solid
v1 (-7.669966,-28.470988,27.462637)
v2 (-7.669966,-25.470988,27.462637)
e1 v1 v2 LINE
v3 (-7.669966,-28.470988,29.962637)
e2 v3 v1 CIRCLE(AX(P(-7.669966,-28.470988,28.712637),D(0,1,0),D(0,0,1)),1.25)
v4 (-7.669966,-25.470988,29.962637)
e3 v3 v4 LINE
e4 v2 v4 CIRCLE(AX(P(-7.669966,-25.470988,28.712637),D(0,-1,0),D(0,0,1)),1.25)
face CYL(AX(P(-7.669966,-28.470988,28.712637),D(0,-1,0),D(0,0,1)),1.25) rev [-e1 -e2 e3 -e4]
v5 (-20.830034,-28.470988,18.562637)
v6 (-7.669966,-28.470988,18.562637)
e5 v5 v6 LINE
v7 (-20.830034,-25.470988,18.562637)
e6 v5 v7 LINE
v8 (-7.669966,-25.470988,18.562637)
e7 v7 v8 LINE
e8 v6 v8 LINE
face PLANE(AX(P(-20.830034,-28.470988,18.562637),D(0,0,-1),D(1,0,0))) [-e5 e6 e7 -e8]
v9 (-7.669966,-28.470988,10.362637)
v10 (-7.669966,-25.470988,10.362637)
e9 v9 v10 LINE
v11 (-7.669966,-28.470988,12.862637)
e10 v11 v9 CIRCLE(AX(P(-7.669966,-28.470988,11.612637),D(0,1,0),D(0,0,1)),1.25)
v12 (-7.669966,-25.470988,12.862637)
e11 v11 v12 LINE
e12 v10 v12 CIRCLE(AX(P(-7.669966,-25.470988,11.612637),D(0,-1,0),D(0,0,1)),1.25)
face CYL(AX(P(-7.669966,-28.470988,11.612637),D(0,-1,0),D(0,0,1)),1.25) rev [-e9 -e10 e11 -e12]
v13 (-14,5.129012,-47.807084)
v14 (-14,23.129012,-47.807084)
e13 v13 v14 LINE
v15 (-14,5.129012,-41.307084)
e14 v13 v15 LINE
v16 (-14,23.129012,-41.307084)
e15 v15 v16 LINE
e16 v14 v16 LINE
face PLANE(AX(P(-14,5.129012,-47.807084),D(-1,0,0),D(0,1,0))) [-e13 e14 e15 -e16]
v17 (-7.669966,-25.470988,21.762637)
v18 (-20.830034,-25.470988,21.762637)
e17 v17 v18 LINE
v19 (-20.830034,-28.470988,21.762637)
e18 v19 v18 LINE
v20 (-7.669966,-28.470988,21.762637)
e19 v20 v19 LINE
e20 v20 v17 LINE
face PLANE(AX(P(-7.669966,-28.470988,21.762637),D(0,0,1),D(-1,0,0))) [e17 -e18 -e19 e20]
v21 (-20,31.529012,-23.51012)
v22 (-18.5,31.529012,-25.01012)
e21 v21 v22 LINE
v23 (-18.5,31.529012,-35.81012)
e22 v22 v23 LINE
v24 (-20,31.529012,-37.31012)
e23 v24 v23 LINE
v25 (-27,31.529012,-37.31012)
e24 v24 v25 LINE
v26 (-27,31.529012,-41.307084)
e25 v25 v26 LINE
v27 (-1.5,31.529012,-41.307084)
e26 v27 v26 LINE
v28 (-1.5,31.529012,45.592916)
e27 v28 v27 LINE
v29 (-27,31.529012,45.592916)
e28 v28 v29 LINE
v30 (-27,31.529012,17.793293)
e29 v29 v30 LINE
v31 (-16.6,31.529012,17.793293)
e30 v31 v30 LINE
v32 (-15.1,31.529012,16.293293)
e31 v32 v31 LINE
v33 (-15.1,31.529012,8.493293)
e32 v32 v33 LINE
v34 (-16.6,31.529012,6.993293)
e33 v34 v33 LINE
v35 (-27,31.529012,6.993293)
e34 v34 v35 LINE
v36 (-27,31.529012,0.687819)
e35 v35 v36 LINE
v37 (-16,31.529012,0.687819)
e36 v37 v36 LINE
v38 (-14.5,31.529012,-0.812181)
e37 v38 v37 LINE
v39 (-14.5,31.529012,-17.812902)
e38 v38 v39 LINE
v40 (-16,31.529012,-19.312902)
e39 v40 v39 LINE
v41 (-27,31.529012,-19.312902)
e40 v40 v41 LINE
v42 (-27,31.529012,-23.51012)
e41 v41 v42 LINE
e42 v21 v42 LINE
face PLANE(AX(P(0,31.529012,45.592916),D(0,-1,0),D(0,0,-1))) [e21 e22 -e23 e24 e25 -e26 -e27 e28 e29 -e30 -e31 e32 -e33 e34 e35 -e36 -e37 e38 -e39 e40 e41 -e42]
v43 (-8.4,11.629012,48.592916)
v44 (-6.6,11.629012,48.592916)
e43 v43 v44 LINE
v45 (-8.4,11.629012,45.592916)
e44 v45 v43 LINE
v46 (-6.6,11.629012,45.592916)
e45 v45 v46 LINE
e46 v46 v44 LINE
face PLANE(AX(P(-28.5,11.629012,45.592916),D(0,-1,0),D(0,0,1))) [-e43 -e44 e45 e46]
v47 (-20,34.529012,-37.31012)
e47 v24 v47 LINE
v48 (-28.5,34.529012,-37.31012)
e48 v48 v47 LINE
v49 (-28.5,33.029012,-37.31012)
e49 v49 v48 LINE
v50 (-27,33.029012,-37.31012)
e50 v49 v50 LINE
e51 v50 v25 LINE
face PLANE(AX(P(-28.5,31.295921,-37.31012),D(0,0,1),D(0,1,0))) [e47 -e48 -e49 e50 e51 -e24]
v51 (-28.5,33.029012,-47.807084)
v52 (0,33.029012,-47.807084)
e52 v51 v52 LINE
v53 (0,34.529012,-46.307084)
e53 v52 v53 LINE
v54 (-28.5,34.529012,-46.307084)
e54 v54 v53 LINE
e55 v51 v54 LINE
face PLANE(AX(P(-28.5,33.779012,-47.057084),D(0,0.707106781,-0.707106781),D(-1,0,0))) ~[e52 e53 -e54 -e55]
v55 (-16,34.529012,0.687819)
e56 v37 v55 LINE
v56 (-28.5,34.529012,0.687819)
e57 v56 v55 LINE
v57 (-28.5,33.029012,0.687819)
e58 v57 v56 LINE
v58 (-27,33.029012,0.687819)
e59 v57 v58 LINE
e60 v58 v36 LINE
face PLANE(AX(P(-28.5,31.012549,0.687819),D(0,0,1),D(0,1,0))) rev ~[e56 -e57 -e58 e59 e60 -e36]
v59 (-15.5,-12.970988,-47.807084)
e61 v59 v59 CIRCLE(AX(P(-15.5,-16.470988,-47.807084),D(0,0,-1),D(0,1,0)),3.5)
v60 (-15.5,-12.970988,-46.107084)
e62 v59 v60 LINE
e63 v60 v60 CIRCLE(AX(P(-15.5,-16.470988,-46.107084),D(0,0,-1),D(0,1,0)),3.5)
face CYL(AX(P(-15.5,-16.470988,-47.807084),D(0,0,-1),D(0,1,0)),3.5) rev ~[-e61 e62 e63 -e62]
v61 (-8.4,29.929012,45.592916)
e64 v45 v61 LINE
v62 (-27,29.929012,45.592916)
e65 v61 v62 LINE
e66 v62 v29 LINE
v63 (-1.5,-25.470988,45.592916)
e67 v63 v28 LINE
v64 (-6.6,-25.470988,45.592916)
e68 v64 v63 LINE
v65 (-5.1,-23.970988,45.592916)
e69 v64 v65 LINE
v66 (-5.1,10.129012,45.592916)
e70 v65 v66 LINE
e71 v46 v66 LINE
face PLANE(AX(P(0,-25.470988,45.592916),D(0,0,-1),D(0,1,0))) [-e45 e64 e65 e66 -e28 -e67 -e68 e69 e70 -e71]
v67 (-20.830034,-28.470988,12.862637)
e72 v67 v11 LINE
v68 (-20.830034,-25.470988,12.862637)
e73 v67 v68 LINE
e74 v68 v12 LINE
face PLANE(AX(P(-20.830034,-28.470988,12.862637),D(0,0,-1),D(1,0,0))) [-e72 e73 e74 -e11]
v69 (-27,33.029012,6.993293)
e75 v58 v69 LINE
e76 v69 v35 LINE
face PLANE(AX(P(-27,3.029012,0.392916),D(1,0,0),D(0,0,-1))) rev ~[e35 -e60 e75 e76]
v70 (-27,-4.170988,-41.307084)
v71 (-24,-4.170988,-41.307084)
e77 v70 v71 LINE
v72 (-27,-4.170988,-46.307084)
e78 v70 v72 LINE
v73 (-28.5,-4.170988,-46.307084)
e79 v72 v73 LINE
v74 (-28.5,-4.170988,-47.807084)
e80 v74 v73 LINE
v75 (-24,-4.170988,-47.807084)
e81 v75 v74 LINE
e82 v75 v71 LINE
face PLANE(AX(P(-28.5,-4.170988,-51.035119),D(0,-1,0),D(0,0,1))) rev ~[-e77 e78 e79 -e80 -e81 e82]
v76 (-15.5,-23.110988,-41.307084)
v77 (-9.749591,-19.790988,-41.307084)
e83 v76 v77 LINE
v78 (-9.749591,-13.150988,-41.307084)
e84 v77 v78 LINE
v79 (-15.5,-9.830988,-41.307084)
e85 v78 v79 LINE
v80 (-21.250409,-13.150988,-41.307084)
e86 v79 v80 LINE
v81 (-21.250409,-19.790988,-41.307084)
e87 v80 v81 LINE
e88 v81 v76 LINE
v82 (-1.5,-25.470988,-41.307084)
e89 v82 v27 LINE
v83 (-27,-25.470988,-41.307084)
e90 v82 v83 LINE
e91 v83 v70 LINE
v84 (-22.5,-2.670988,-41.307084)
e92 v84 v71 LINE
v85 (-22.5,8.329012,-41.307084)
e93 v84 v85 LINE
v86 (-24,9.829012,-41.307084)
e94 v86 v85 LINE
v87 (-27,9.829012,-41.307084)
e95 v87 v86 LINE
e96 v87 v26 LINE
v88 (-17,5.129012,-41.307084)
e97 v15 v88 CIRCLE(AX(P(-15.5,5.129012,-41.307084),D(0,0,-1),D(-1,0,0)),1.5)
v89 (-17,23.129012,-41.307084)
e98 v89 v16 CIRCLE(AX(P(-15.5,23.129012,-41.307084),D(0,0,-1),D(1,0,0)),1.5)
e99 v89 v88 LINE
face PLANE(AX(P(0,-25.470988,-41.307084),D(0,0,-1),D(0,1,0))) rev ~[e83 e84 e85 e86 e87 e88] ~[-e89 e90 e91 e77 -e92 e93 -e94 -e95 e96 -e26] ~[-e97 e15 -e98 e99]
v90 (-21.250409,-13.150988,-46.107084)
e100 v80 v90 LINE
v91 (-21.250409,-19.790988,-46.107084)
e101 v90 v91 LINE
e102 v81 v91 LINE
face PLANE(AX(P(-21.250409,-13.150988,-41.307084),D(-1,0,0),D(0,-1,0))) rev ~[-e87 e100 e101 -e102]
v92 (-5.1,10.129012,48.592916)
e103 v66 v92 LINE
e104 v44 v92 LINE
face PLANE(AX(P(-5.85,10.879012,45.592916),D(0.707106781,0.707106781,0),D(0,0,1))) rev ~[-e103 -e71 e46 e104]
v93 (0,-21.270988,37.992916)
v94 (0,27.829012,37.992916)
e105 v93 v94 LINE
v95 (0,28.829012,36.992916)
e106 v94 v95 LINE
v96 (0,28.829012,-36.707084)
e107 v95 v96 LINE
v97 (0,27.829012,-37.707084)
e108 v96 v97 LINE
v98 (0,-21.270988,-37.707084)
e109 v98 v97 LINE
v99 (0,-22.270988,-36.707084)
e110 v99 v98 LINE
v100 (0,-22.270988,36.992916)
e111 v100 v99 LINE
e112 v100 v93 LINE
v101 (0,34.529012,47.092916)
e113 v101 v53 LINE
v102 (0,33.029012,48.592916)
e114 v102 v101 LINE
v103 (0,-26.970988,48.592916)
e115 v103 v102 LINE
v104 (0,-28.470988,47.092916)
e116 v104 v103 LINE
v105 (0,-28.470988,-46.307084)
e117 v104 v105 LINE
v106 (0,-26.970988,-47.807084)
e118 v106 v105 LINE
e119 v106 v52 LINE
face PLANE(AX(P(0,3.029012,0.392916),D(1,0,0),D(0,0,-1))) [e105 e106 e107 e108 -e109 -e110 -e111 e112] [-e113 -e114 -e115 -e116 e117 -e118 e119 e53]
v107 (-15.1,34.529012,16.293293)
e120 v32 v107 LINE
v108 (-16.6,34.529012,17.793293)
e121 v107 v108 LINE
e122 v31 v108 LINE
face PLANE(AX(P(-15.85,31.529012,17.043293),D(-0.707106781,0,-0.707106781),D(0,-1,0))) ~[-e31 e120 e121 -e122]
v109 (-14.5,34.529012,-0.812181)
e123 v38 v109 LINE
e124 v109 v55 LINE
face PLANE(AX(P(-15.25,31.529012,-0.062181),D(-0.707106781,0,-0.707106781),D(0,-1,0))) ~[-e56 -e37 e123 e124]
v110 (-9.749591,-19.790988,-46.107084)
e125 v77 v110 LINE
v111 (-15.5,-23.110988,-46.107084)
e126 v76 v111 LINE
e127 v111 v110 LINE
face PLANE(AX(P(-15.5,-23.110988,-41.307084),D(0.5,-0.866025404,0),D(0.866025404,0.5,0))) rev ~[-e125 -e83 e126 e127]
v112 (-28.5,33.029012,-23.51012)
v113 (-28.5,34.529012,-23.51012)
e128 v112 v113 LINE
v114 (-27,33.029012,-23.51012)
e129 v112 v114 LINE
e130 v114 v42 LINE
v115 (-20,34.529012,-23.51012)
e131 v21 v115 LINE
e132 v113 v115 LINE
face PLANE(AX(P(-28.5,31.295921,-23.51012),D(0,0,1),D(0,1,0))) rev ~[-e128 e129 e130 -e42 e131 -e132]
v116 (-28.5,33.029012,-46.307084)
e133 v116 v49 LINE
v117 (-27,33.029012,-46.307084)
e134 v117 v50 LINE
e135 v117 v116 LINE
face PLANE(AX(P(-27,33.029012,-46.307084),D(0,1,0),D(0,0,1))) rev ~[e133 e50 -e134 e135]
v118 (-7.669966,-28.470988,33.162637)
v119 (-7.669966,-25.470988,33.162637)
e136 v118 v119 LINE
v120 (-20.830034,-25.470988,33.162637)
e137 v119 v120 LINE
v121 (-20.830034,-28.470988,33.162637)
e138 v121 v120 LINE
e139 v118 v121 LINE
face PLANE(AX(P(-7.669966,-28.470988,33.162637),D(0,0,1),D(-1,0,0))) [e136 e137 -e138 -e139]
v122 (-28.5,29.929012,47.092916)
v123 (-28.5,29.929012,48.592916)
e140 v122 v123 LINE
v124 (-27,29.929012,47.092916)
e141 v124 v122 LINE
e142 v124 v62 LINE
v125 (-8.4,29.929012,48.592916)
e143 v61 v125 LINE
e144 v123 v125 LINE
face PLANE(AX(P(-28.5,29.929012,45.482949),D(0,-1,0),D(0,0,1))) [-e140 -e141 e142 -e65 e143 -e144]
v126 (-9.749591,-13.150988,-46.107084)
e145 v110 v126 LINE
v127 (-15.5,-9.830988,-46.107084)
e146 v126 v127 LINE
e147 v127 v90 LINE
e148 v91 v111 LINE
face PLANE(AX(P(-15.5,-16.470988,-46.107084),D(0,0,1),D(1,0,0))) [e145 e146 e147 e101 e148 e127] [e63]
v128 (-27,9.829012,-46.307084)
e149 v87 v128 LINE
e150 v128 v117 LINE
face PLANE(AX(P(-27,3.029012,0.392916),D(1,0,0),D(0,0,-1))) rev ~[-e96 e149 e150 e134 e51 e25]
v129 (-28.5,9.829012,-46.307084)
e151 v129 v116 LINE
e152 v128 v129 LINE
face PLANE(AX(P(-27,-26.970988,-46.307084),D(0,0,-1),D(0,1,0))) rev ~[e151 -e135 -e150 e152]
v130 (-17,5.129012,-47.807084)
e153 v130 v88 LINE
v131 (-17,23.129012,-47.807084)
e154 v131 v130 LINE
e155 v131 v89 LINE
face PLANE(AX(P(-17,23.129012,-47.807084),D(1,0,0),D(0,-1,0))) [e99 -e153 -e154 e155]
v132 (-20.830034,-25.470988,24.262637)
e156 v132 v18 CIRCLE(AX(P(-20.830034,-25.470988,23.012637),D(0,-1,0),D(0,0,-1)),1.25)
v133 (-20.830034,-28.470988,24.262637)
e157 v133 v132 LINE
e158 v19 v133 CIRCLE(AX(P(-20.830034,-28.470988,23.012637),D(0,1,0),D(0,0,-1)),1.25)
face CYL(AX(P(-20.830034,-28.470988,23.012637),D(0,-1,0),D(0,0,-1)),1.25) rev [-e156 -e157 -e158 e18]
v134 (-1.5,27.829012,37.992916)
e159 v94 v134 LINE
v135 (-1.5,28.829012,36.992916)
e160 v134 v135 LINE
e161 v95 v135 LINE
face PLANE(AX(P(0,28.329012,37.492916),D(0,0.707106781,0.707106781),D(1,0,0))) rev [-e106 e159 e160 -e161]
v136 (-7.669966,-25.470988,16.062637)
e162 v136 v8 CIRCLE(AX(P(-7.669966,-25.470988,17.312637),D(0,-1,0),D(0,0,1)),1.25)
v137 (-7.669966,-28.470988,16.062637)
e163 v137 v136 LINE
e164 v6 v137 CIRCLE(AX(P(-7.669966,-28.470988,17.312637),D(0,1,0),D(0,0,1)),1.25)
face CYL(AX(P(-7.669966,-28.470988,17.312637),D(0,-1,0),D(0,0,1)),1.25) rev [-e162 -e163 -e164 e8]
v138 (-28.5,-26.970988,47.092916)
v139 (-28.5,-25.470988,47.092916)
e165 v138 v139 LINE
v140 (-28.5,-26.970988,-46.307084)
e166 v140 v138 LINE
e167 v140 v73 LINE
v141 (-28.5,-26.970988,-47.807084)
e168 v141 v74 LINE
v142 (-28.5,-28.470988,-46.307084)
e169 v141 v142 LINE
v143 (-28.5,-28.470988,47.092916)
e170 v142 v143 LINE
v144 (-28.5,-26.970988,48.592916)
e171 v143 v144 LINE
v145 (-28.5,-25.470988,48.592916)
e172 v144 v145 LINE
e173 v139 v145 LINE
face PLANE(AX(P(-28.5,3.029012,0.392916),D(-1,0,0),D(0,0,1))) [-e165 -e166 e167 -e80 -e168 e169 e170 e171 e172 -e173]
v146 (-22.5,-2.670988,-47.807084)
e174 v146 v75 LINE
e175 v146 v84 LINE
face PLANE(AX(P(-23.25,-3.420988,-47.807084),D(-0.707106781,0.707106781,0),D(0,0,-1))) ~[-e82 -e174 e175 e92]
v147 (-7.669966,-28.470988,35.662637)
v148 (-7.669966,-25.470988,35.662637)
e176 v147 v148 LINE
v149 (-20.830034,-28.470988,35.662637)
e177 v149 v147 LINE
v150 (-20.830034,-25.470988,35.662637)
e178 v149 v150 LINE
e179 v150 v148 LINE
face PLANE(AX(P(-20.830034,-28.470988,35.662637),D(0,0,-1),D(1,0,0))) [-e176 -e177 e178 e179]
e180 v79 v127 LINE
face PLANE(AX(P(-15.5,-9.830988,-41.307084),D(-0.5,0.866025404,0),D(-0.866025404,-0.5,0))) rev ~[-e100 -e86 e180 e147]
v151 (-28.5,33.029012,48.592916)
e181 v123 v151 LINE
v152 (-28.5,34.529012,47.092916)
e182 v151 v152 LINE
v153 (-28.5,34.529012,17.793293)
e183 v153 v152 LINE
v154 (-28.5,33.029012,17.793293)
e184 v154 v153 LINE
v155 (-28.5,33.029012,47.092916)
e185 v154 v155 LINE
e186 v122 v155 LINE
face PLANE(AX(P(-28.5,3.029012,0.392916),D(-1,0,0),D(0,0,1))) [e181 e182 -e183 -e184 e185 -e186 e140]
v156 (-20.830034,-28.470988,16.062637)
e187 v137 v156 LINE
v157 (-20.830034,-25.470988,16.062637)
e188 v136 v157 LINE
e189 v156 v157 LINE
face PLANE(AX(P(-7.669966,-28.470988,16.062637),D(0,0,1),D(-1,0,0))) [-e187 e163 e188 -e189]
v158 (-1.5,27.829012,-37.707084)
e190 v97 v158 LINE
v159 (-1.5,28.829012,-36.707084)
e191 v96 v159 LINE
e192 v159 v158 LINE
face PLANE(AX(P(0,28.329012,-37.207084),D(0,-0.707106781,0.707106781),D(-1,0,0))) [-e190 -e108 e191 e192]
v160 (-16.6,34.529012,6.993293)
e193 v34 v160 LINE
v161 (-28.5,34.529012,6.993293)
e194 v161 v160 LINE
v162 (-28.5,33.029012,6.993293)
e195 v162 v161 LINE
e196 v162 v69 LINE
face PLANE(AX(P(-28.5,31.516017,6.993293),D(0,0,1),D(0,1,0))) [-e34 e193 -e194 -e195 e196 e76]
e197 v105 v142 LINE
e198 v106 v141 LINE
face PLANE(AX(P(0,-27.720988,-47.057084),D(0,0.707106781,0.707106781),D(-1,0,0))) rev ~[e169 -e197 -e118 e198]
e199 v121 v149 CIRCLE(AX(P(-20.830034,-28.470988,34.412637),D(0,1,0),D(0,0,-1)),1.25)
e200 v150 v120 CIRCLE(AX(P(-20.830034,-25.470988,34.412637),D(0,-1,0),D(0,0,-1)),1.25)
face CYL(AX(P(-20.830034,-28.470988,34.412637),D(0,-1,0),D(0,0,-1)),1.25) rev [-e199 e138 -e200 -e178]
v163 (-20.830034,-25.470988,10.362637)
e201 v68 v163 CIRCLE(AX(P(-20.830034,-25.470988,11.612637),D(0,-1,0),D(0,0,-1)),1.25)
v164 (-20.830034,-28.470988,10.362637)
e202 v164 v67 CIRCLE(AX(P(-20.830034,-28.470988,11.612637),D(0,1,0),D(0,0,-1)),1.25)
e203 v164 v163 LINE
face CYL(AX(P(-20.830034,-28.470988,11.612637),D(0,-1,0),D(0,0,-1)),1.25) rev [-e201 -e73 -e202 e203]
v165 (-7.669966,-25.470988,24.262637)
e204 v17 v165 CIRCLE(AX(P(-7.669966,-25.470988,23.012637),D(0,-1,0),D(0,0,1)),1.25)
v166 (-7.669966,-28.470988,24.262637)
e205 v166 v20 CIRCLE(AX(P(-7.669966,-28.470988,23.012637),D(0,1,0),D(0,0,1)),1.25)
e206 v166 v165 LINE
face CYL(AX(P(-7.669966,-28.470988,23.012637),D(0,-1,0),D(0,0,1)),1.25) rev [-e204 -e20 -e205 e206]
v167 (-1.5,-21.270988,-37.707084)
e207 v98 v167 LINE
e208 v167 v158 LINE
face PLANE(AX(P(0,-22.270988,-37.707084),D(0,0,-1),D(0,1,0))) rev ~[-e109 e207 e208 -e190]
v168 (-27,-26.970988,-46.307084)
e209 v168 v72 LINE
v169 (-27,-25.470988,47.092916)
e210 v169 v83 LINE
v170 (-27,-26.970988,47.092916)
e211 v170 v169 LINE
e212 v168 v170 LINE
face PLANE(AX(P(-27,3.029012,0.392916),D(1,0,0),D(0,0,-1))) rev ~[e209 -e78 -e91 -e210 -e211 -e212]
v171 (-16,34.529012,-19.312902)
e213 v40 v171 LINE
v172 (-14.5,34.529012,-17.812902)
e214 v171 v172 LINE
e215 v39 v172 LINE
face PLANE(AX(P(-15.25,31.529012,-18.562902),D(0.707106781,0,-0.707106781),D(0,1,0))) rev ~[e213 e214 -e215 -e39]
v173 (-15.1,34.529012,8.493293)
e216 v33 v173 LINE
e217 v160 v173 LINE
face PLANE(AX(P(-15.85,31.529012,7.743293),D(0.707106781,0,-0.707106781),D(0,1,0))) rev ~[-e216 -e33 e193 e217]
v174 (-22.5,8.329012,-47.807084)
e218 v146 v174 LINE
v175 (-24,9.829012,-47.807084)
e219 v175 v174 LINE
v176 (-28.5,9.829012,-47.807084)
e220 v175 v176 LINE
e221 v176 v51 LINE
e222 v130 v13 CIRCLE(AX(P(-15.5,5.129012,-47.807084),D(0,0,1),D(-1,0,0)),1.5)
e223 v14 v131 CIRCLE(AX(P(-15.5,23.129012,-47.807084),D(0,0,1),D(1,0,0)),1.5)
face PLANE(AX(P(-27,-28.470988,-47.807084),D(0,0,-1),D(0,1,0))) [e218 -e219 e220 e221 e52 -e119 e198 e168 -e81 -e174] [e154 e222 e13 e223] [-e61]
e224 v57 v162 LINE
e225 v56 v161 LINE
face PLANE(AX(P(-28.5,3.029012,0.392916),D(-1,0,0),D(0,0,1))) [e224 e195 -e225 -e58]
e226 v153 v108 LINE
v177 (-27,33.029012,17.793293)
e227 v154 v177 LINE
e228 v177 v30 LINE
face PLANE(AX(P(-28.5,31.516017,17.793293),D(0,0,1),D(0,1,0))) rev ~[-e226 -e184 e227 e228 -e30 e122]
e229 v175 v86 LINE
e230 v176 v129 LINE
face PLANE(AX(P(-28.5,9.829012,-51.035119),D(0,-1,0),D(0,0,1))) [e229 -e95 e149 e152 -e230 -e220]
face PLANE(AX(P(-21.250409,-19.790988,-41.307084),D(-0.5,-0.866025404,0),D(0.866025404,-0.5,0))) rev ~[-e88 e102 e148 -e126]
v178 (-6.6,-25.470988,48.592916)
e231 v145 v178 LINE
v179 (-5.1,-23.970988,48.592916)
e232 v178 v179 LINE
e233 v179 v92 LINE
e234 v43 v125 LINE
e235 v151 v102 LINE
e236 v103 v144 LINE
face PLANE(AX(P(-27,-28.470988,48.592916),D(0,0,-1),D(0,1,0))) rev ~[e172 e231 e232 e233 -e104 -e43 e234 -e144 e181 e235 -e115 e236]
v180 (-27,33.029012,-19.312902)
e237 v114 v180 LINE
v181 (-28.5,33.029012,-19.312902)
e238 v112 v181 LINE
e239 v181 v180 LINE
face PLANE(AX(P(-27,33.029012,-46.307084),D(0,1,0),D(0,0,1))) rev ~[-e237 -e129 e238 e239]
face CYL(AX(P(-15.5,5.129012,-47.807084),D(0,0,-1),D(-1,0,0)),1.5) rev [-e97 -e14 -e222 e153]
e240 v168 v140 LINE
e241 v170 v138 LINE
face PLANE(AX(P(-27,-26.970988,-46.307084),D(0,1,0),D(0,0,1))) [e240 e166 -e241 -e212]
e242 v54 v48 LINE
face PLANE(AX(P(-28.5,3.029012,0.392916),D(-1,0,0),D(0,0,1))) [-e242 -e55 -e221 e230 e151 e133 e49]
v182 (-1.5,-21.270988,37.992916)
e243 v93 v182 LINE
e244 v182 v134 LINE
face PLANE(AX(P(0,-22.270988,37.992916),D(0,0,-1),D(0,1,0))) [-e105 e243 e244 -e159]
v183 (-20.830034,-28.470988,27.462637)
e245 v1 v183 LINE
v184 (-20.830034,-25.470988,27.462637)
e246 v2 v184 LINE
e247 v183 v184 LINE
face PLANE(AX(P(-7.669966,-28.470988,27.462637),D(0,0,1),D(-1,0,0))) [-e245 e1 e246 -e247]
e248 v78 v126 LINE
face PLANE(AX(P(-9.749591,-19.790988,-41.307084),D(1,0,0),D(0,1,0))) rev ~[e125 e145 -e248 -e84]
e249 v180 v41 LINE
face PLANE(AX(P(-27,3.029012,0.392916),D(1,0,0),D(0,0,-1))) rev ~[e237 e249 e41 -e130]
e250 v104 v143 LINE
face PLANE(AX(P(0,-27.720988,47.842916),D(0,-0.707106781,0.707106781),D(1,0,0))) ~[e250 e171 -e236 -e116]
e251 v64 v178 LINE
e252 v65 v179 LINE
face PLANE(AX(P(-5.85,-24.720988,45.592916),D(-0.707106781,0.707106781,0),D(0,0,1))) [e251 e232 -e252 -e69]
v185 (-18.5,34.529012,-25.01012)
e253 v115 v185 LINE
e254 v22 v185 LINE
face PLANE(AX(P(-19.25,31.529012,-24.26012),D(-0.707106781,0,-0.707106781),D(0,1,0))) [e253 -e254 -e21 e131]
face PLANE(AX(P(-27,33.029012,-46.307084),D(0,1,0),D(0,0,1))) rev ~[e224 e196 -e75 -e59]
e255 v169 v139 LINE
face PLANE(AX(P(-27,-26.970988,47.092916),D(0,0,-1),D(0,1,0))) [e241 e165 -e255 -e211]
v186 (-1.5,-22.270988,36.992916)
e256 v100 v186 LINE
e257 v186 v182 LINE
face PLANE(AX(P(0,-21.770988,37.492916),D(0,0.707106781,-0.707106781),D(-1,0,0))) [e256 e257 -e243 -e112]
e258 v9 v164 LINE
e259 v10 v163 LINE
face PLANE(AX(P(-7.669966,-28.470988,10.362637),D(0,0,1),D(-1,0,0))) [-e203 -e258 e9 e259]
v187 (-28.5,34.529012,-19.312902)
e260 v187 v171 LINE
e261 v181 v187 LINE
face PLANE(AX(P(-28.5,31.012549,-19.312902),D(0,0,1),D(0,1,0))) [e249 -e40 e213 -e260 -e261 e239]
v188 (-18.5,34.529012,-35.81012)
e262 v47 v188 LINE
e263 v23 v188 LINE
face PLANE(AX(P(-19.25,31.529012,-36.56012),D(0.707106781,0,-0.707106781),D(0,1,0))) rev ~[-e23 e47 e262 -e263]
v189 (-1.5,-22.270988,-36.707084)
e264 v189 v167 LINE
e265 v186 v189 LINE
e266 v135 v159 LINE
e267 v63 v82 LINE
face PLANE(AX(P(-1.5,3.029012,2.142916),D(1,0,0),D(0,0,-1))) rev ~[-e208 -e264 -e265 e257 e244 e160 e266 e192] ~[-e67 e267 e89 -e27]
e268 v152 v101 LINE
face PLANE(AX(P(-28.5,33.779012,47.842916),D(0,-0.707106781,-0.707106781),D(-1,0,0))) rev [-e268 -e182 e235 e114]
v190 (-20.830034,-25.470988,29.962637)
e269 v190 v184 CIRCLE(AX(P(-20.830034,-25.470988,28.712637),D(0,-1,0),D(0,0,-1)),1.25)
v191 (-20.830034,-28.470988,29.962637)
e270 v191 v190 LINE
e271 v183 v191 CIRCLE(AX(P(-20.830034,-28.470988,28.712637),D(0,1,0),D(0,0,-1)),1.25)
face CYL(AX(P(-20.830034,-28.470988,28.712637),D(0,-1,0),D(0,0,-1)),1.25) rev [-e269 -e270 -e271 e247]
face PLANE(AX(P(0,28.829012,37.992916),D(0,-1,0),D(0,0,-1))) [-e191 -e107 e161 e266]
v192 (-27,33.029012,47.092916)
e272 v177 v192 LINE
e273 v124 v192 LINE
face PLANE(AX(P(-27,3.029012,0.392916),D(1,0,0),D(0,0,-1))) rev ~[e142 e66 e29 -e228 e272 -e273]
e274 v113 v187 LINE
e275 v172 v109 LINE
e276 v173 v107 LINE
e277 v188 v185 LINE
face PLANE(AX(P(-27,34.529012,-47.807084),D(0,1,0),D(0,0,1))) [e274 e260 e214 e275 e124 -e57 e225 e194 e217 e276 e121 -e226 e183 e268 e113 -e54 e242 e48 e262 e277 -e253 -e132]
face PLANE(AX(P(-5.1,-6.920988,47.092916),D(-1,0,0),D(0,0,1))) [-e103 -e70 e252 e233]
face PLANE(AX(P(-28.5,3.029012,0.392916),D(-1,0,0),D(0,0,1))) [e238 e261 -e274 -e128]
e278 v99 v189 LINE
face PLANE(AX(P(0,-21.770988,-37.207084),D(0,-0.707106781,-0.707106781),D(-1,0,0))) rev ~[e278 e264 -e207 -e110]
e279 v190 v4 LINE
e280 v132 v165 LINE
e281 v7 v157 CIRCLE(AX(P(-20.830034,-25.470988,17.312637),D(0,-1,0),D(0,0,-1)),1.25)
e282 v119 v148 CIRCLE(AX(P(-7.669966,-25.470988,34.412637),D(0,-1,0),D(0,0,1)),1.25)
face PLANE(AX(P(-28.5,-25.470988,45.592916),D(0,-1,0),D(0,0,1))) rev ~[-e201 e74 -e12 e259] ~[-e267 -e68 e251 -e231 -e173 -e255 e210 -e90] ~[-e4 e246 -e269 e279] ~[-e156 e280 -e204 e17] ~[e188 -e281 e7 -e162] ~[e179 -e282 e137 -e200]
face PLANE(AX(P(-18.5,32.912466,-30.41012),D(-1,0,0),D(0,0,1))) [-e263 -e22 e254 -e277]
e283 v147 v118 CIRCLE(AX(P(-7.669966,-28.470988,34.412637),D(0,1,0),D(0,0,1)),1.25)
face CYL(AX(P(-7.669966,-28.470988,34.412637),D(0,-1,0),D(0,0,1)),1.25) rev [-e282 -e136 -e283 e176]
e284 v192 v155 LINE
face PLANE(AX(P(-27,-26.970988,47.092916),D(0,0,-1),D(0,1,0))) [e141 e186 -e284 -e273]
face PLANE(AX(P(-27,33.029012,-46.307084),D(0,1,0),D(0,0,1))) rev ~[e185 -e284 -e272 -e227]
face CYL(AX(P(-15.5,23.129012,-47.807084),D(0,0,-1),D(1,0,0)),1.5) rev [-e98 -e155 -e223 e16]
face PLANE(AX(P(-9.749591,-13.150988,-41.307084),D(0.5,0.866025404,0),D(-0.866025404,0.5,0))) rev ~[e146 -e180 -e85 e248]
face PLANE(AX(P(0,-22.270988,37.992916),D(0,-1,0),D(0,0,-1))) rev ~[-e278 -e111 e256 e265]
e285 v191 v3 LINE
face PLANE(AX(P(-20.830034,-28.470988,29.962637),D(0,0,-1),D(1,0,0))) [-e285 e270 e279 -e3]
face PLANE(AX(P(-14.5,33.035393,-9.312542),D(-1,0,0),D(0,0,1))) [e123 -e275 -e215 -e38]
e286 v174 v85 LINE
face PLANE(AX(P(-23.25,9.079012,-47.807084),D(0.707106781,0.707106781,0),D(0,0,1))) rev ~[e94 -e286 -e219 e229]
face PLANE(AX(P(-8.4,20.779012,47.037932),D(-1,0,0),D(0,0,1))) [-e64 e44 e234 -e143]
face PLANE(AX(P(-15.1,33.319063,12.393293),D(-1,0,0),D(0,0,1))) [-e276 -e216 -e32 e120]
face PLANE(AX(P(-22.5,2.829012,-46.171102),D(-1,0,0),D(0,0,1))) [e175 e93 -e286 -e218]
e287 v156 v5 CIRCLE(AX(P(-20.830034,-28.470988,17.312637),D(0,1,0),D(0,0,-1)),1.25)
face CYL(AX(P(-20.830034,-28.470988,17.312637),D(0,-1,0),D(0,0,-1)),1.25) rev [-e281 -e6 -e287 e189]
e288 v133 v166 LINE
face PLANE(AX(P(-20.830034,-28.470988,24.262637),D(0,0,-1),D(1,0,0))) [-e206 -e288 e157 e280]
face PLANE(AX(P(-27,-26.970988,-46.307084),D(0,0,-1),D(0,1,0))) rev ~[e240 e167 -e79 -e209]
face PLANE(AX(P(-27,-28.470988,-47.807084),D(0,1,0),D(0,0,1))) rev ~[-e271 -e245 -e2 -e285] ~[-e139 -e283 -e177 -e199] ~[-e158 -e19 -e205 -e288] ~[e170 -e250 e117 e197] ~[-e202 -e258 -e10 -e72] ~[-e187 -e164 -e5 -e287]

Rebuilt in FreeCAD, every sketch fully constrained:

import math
import FreeCAD as App
import Part
import Sketcher
Q = App.Units.Quantity


def edges_at(feature, points):
    """Names of the edges that pass closest to the given points."""
    edges = feature.Shape.Edges
    near = lambda p: min(range(len(edges)), key=lambda i: edges[i].distToShape(Part.Vertex(*p))[0])
    return sorted({f"Edge{near(p) + 1}" for p in points})

doc = App.newDocument("Part")
body = doc.addObject("PartDesign::Body", "Body")

sketch1 = body.newObject("Sketcher::SketchObject", "Sketch")
sketch1.AttachmentSupport = (doc.getObject("YZ_Plane"), [""])
sketch1.MapMode = "FlatFace"
sketch1.addGeometry([
    Part.LineSegment(App.Vector(32, 46, 0), App.Vector(-25, 46, 0)),
    Part.LineSegment(App.Vector(-25, 46, 0), App.Vector(-25, -41, 0)),
    Part.LineSegment(App.Vector(-25, -41, 0), App.Vector(32, -41, 0)),
    Part.LineSegment(App.Vector(32, -41, 0), App.Vector(32, 46, 0)),
    Part.LineSegment(App.Vector(-22, -38, 0), App.Vector(-22, 38, 0)),
    Part.LineSegment(App.Vector(-22, 38, 0), App.Vector(29, 38, 0)),
    Part.LineSegment(App.Vector(29, 38, 0), App.Vector(29, -38, 0)),
    Part.LineSegment(App.Vector(29, -38, 0), App.Vector(-22, -38, 0)),
], False)
sketch1.addConstraint([
    Sketcher.Constraint("Coincident", 0, 2, 1, 1),
    Sketcher.Constraint("Coincident", 1, 2, 2, 1),
    Sketcher.Constraint("Coincident", 2, 2, 3, 1),
    Sketcher.Constraint("Coincident", 3, 2, 0, 1),
    Sketcher.Constraint("Coincident", 4, 2, 5, 1),
    Sketcher.Constraint("Coincident", 5, 2, 6, 1),
    Sketcher.Constraint("Coincident", 6, 2, 7, 1),
    Sketcher.Constraint("Coincident", 7, 2, 4, 1),
    Sketcher.Constraint("Horizontal", 0),
    Sketcher.Constraint("Vertical", 1),
    Sketcher.Constraint("Horizontal", 2),
    Sketcher.Constraint("Vertical", 3),
    Sketcher.Constraint("Vertical", 4),
    Sketcher.Constraint("Horizontal", 5),
    Sketcher.Constraint("Vertical", 6),
    Sketcher.Constraint("Horizontal", 7),
    Sketcher.Constraint("DistanceX", 0, 2, 0, 1, 57.0),
    Sketcher.Constraint("DistanceX", 5, 1, 5, 2, 51.1),
    Sketcher.Constraint("DistanceY", 1, 2, 1, 1, 86.9),
    Sketcher.Constraint("DistanceY", 4, 1, 4, 2, 75.7),
    Sketcher.Constraint("DistanceX", 0, 2, 4, 2, 3.2),
    Sketcher.Constraint("DistanceY", 4, 2, 0, 2, 7.6),
    Sketcher.Constraint("DistanceX", 0, 2, -1, 1, 25.470988),
    Sketcher.Constraint("DistanceY", -1, 1, 0, 2, 45.592916),
])
pad1 = body.newObject("PartDesign::Pad", "Pad")
pad1.Profile = sketch1
pad1.Length = 1.5
pad1.Reversed = True

sketch2 = body.newObject("Sketcher::SketchObject", "Sketch001")
sketch2.AttachmentSupport = (doc.getObject("YZ_Plane"), [""])
sketch2.MapMode = "FlatFace"
sketch2.addGeometry([
    Part.LineSegment(App.Vector(35, 49, 0), App.Vector(-28, 49, 0)),
    Part.LineSegment(App.Vector(-28, 49, 0), App.Vector(-28, -48, 0)),
    Part.LineSegment(App.Vector(-28, -48, 0), App.Vector(35, -48, 0)),
    Part.LineSegment(App.Vector(35, -48, 0), App.Vector(35, 49, 0)),
    Part.LineSegment(App.Vector(-25, -41, 0), App.Vector(-25, 46, 0)),
    Part.LineSegment(App.Vector(-25, 46, 0), App.Vector(32, 46, 0)),
    Part.LineSegment(App.Vector(32, 46, 0), App.Vector(32, -41, 0)),
    Part.LineSegment(App.Vector(32, -41, 0), App.Vector(-25, -41, 0)),
], False)
sketch2.addConstraint([
    Sketcher.Constraint("Coincident", 0, 2, 1, 1),
    Sketcher.Constraint("Coincident", 1, 2, 2, 1),
    Sketcher.Constraint("Coincident", 2, 2, 3, 1),
    Sketcher.Constraint("Coincident", 3, 2, 0, 1),
    Sketcher.Constraint("Coincident", 4, 2, 5, 1),
    Sketcher.Constraint("Coincident", 5, 2, 6, 1),
    Sketcher.Constraint("Coincident", 6, 2, 7, 1),
    Sketcher.Constraint("Coincident", 7, 2, 4, 1),
    Sketcher.Constraint("Horizontal", 0),
    Sketcher.Constraint("Vertical", 1),
    Sketcher.Constraint("Horizontal", 2),
    Sketcher.Constraint("Vertical", 3),
    Sketcher.Constraint("Vertical", 4),
    Sketcher.Constraint("Horizontal", 5),
    Sketcher.Constraint("Vertical", 6),
    Sketcher.Constraint("Horizontal", 7),
    Sketcher.Constraint("DistanceX", 0, 2, 0, 1, 63.0),
    Sketcher.Constraint("DistanceX", 5, 1, 5, 2, 57.0),
    Sketcher.Constraint("DistanceY", 1, 2, 1, 1, 96.4),
    Sketcher.Constraint("DistanceY", 4, 1, 4, 2, 86.9),
    Sketcher.Constraint("DistanceX", 0, 2, 4, 2, 3.0),
    Sketcher.Constraint("DistanceY", 4, 2, 0, 2, 3.0),
    Sketcher.Constraint("DistanceX", 0, 2, -1, 1, 28.470988),
    Sketcher.Constraint("DistanceY", -1, 1, 0, 2, 48.592916),
])
pad2 = body.newObject("PartDesign::Pad", "Pad001")
pad2.Profile = sketch2
pad2.Length = 27
pad2.Reversed = True
doc.recompute()

chamfer = body.newObject("PartDesign::Chamfer", "Chamfer")
chamfer.Base = (pad2, edges_at(pad2, [
    (-0.75, 28.829, 37.993),
    (-0.75, -22.271, 37.993),
    (-0.75, -22.271, -37.707),
    (-0.75, 28.829, -37.707),
]))
chamfer.Size = 1

sketch3 = body.newObject("Sketcher::SketchObject", "Sketch002")
sketch3.AttachmentSupport = (doc.getObject("YZ_Plane"), [""])
sketch3.MapMode = "FlatFace"
sketch3.AttachmentOffset = App.Placement(App.Vector(0, 0, -27), App.Rotation())
sketch3.addGeometry([
    Part.LineSegment(App.Vector(35, -48, 0), App.Vector(-28, -48, 0)),
    Part.LineSegment(App.Vector(-28, -48, 0), App.Vector(-28, 49, 0)),
    Part.LineSegment(App.Vector(-28, 49, 0), App.Vector(35, 49, 0)),
    Part.LineSegment(App.Vector(35, 49, 0), App.Vector(35, -48, 0)),
    Part.LineSegment(App.Vector(-27, 47, 0), App.Vector(-27, -46, 0)),
    Part.LineSegment(App.Vector(-27, -46, 0), App.Vector(33, -46, 0)),
    Part.LineSegment(App.Vector(33, -46, 0), App.Vector(33, 47, 0)),
    Part.LineSegment(App.Vector(33, 47, 0), App.Vector(-27, 47, 0)),
], False)
sketch3.addConstraint([
    Sketcher.Constraint("Coincident", 0, 2, 1, 1),
    Sketcher.Constraint("Coincident", 1, 2, 2, 1),
    Sketcher.Constraint("Coincident", 2, 2, 3, 1),
    Sketcher.Constraint("Coincident", 3, 2, 0, 1),
    Sketcher.Constraint("Coincident", 4, 2, 5, 1),
    Sketcher.Constraint("Coincident", 5, 2, 6, 1),
    Sketcher.Constraint("Coincident", 6, 2, 7, 1),
    Sketcher.Constraint("Coincident", 7, 2, 4, 1),
    Sketcher.Constraint("Horizontal", 0),
    Sketcher.Constraint("Vertical", 1),
    Sketcher.Constraint("Horizontal", 2),
    Sketcher.Constraint("Vertical", 3),
    Sketcher.Constraint("Vertical", 4),
    Sketcher.Constraint("Horizontal", 5),
    Sketcher.Constraint("Vertical", 6),
    Sketcher.Constraint("Horizontal", 7),
    Sketcher.Constraint("DistanceX", 0, 2, 0, 1, 63.0),
    Sketcher.Constraint("DistanceX", 5, 1, 5, 2, 60.0),
    Sketcher.Constraint("DistanceY", 1, 1, 1, 2, 96.4),
    Sketcher.Constraint("DistanceY", 4, 2, 4, 1, 93.4),
    Sketcher.Constraint("DistanceX", 0, 2, 4, 2, 1.5),
    Sketcher.Constraint("DistanceY", 0, 2, 4, 2, 1.5),
    Sketcher.Constraint("DistanceX", 0, 2, -1, 1, 28.470988),
    Sketcher.Constraint("DistanceY", 0, 2, -1, 1, 47.807084),
])
pad3 = body.newObject("PartDesign::Pad", "Pad002")
pad3.Profile = sketch3
pad3.Length = 1.5
pad3.Reversed = True
doc.recompute()

chamfer2 = body.newObject("PartDesign::Chamfer", "Chamfer001")
chamfer2.Base = (pad3, edges_at(pad3, [
    (-14.25, 34.529, -47.807),
    (-14.25, -28.471, -47.807),
    (-14.25, -28.471, 48.593),
    (-14.25, 34.529, 48.593),
]))
chamfer2.Size = 1.5

sketch4 = body.newObject("Sketcher::SketchObject", "Sketch003")
sketch4.AttachmentSupport = (doc.getObject("YZ_Plane"), [""])
sketch4.MapMode = "FlatFace"
sketch4.AttachmentOffset = App.Placement(App.Vector(0, 0, -28.5), App.Rotation())
sketch4.addGeometry([
    Part.LineSegment(App.Vector(10, -51, 0), App.Vector(-4, -51, 0)),
    Part.LineSegment(App.Vector(-4, -51, 0), App.Vector(-4, -41, 0)),
    Part.LineSegment(App.Vector(-4, -41, 0), App.Vector(10, -41, 0)),
    Part.LineSegment(App.Vector(10, -41, 0), App.Vector(10, -51, 0)),
], False)
sketch4.addConstraint([
    Sketcher.Constraint("Coincident", 0, 2, 1, 1),
    Sketcher.Constraint("Coincident", 1, 2, 2, 1),
    Sketcher.Constraint("Coincident", 2, 2, 3, 1),
    Sketcher.Constraint("Coincident", 3, 2, 0, 1),
    Sketcher.Constraint("Horizontal", 0),
    Sketcher.Constraint("Vertical", 1),
    Sketcher.Constraint("Horizontal", 2),
    Sketcher.Constraint("Vertical", 3),
    Sketcher.Constraint("DistanceX", 0, 2, 0, 1, 14.0),
    Sketcher.Constraint("DistanceY", 1, 1, 1, 2, 9.728035),
    Sketcher.Constraint("DistanceY", 0, 2, -1, 1, 51.035119),
    Sketcher.Constraint("DistanceX", 0, 2, -1, 1, 4.170988),
])
pocket1 = body.newObject("PartDesign::Pocket", "Pocket")
pocket1.Profile = sketch4
pocket1.Length = 6
pocket1.Reversed = True

sketch5 = body.newObject("Sketcher::SketchObject", "Sketch004")
sketch5.AttachmentSupport = (doc.getObject("YZ_Plane"), [""])
sketch5.MapMode = "FlatFace"
sketch5.AttachmentOffset = App.Placement(App.Vector(0, 0, -28.5), App.Rotation())
sketch5.addGeometry([
    Part.LineSegment(App.Vector(11.6, 45.6, 0), App.Vector(-25.5, 45.6, 0)),
    Part.LineSegment(App.Vector(-25.5, 45.6, 0), App.Vector(-25.5, 48.6, 0)),
    Part.LineSegment(App.Vector(-25.5, 48.6, 0), App.Vector(11.6, 48.6, 0)),
    Part.LineSegment(App.Vector(11.6, 48.6, 0), App.Vector(11.6, 45.6, 0)),
], False)
sketch5.addConstraint([
    Sketcher.Constraint("Coincident", 0, 2, 1, 1),
    Sketcher.Constraint("Coincident", 1, 2, 2, 1),
    Sketcher.Constraint("Coincident", 2, 2, 3, 1),
    Sketcher.Constraint("Coincident", 3, 2, 0, 1),
    Sketcher.Constraint("Horizontal", 0),
    Sketcher.Constraint("Vertical", 1),
    Sketcher.Constraint("Horizontal", 2),
    Sketcher.Constraint("Vertical", 3),
    Sketcher.Constraint("DistanceY", 1, 1, 1, 2, 3.0),
    Sketcher.Constraint("DistanceX", 0, 2, 0, 1, 37.1),
    Sketcher.Constraint("DistanceX", 0, 2, -1, 1, 25.470988),
    Sketcher.Constraint("DistanceY", -1, 1, 0, 2, 45.592916),
])
pocket2 = body.newObject("PartDesign::Pocket", "Pocket001")
pocket2.Profile = sketch5
pocket2.Length = 23.4
pocket2.Reversed = True

sketch6 = body.newObject("Sketcher::SketchObject", "Sketch005")
sketch6.AttachmentSupport = (doc.getObject("YZ_Plane"), [""])
sketch6.MapMode = "FlatFace"
sketch6.AttachmentOffset = App.Placement(App.Vector(0, 0, -28.5), App.Rotation())
sketch6.addGeometry([
    Part.LineSegment(App.Vector(29.9, 45.5, 0), App.Vector(11.6, 45.5, 0)),
    Part.LineSegment(App.Vector(11.6, 45.5, 0), App.Vector(11.6, 48.6, 0)),
    Part.LineSegment(App.Vector(11.6, 48.6, 0), App.Vector(29.9, 48.6, 0)),
    Part.LineSegment(App.Vector(29.9, 48.6, 0), App.Vector(29.9, 45.5, 0)),
], False)
sketch6.addConstraint([
    Sketcher.Constraint("Coincident", 0, 2, 1, 1),
    Sketcher.Constraint("Coincident", 1, 2, 2, 1),
    Sketcher.Constraint("Coincident", 2, 2, 3, 1),
    Sketcher.Constraint("Coincident", 3, 2, 0, 1),
    Sketcher.Constraint("Horizontal", 0),
    Sketcher.Constraint("Vertical", 1),
    Sketcher.Constraint("Horizontal", 2),
    Sketcher.Constraint("Vertical", 3),
    Sketcher.Constraint("DistanceX", 0, 2, 0, 1, 18.3),
    Sketcher.Constraint("DistanceY", 1, 1, 1, 2, 3.109967),
    Sketcher.Constraint("DistanceY", -1, 1, 0, 2, 45.482949),
    Sketcher.Constraint("DistanceX", -1, 1, 0, 2, 11.629012),
])
pocket3 = body.newObject("PartDesign::Pocket", "Pocket002")
pocket3.Profile = sketch6
pocket3.Length = 20.1
pocket3.Reversed = True

sketch7 = body.newObject("Sketcher::SketchObject", "Sketch006")
sketch7.AttachmentSupport = (doc.getObject("YZ_Plane"), [""])
sketch7.MapMode = "FlatFace"
sketch7.AttachmentOffset = App.Placement(App.Vector(0, 0, -28.5), App.Rotation())
sketch7.addGeometry([
    Part.LineSegment(App.Vector(34.5, -37.3, 0), App.Vector(31.3, -37.3, 0)),
    Part.LineSegment(App.Vector(31.3, -37.3, 0), App.Vector(31.3, -23.5, 0)),
    Part.LineSegment(App.Vector(31.3, -23.5, 0), App.Vector(34.5, -23.5, 0)),
    Part.LineSegment(App.Vector(34.5, -23.5, 0), App.Vector(34.5, -37.3, 0)),
], False)
sketch7.addConstraint([
    Sketcher.Constraint("Coincident", 0, 2, 1, 1),
    Sketcher.Constraint("Coincident", 1, 2, 2, 1),
    Sketcher.Constraint("Coincident", 2, 2, 3, 1),
    Sketcher.Constraint("Coincident", 3, 2, 0, 1),
    Sketcher.Constraint("Horizontal", 0),
    Sketcher.Constraint("Vertical", 1),
    Sketcher.Constraint("Horizontal", 2),
    Sketcher.Constraint("Vertical", 3),
    Sketcher.Constraint("DistanceY", 1, 1, 1, 2, 13.8),
    Sketcher.Constraint("DistanceX", 0, 2, 0, 1, 3.233092),
    Sketcher.Constraint("DistanceX", -1, 1, 0, 2, 31.295921),
    Sketcher.Constraint("DistanceY", 0, 2, -1, 1, 37.31012),
])
pocket4 = body.newObject("PartDesign::Pocket", "Pocket003")
pocket4.Profile = sketch7
pocket4.Length = 10
pocket4.Reversed = True

sketch8 = body.newObject("Sketcher::SketchObject", "Sketch007")
sketch8.AttachmentSupport = (doc.getObject("YZ_Plane"), [""])
sketch8.MapMode = "FlatFace"
sketch8.AttachmentOffset = App.Placement(App.Vector(0, 0, -28.5), App.Rotation())
sketch8.addGeometry([
    Part.LineSegment(App.Vector(35.1, -19.3, 0), App.Vector(31, -19.3, 0)),
    Part.LineSegment(App.Vector(31, -19.3, 0), App.Vector(31, 0.7, 0)),
    Part.LineSegment(App.Vector(31, 0.7, 0), App.Vector(35.1, 0.7, 0)),
    Part.LineSegment(App.Vector(35.1, 0.7, 0), App.Vector(35.1, -19.3, 0)),
], False)
sketch8.addConstraint([
    Sketcher.Constraint("Coincident", 0, 2, 1, 1),
    Sketcher.Constraint("Coincident", 1, 2, 2, 1),
    Sketcher.Constraint("Coincident", 2, 2, 3, 1),
    Sketcher.Constraint("Coincident", 3, 2, 0, 1),
    Sketcher.Constraint("Horizontal", 0),
    Sketcher.Constraint("Vertical", 1),
    Sketcher.Constraint("Horizontal", 2),
    Sketcher.Constraint("Vertical", 3),
    Sketcher.Constraint("DistanceY", 1, 1, 1, 2, 20.00072),
    Sketcher.Constraint("DistanceY", 0, 2, -1, 1, 19.312902),
    Sketcher.Constraint("DistanceX", 0, 2, 0, 1, 4.045686),
    Sketcher.Constraint("DistanceX", -1, 1, 0, 2, 31.012549),
])
pocket5 = body.newObject("PartDesign::Pocket", "Pocket004")
pocket5.Profile = sketch8
pocket5.Length = 14
pocket5.Reversed = True

sketch9 = body.newObject("Sketcher::SketchObject", "Sketch008")
sketch9.AttachmentSupport = (doc.getObject("YZ_Plane"), [""])
sketch9.MapMode = "FlatFace"
sketch9.AttachmentOffset = App.Placement(App.Vector(0, 0, -28.5), App.Rotation())
sketch9.addGeometry([
    Part.LineSegment(App.Vector(35.1, 7, 0), App.Vector(31.5, 7, 0)),
    Part.LineSegment(App.Vector(31.5, 7, 0), App.Vector(31.5, 17.8, 0)),
    Part.LineSegment(App.Vector(31.5, 17.8, 0), App.Vector(35.1, 17.8, 0)),
    Part.LineSegment(App.Vector(35.1, 17.8, 0), App.Vector(35.1, 7, 0)),
], False)
sketch9.addConstraint([
    Sketcher.Constraint("Coincident", 0, 2, 1, 1),
    Sketcher.Constraint("Coincident", 1, 2, 2, 1),
    Sketcher.Constraint("Coincident", 2, 2, 3, 1),
    Sketcher.Constraint("Coincident", 3, 2, 0, 1),
    Sketcher.Constraint("Horizontal", 0),
    Sketcher.Constraint("Vertical", 1),
    Sketcher.Constraint("Horizontal", 2),
    Sketcher.Constraint("Vertical", 3),
    Sketcher.Constraint("DistanceY", 1, 1, 1, 2, 10.8),
    Sketcher.Constraint("DistanceX", 0, 2, 0, 1, 3.606091),
    Sketcher.Constraint("DistanceX", -1, 1, 2, 2, 35.122108),
    Sketcher.Constraint("DistanceY", -1, 1, 0, 2, 6.993293),
])
pocket6 = body.newObject("PartDesign::Pocket", "Pocket005")
pocket6.Profile = sketch9
pocket6.Length = 13.4
pocket6.Reversed = True
doc.recompute()

chamfer3 = body.newObject("PartDesign::Chamfer", "Chamfer002")
chamfer3.Base = (pocket6, edges_at(pocket6, [(-18.5, 33.029, -37.31), (-18.5, 33.029, -23.51)]))
chamfer3.Size = 1.5
doc.recompute()

chamfer4 = body.newObject("PartDesign::Chamfer", "Chamfer003")
chamfer4.Base = (chamfer3, edges_at(chamfer3, [(-14.5, 33.029, -19.313), (-14.5, 33.029, 0.688)]))
chamfer4.Size = 1.5
doc.recompute()

chamfer5 = body.newObject("PartDesign::Chamfer", "Chamfer004")
chamfer5.Base = (chamfer4, edges_at(chamfer4, [(-15.1, 33.029, 6.993), (-15.1, 33.029, 17.793)]))
chamfer5.Size = 1.5
doc.recompute()

chamfer6 = body.newObject("PartDesign::Chamfer", "Chamfer005")
chamfer6.Base = (chamfer5, edges_at(chamfer5, [(-22.5, -4.171, -44.557), (-22.5, 9.829, -44.557)]))
chamfer6.Size = 1.5
doc.recompute()

chamfer7 = body.newObject("PartDesign::Chamfer", "Chamfer006")
chamfer7.Base = (chamfer6, edges_at(chamfer6, [(-5.1, 11.629, 47.093), (-5.1, -25.471, 47.093)]))
chamfer7.Size = 1.5

sketch10 = body.newObject("Sketcher::SketchObject", "Sketch009")
sketch10.AttachmentSupport = (doc.getObject("XZ_Plane"), [""])
sketch10.MapMode = "FlatFace"
sketch10.AttachmentOffset = App.Placement(App.Vector(0, 0, 28.470988), App.Rotation())
sketch10.addGeometry([
    Part.LineSegment(App.Vector(-7.7, 35.7, 0), App.Vector(-20.8, 35.7, 0)),
    Part.ArcOfCircle(Part.Circle(App.Vector(-20.8, 34.4, 0), App.Vector(0, 0, 1), 1.2), math.radians(90), math.radians(270)),
    Part.LineSegment(App.Vector(-20.8, 33.2, 0), App.Vector(-7.7, 33.2, 0)),
    Part.ArcOfCircle(Part.Circle(App.Vector(-7.7, 34.4, 0), App.Vector(0, 0, 1), 1.2), math.radians(-90), math.radians(90)),
    Part.LineSegment(App.Vector(-7.7, 30, 0), App.Vector(-20.8, 30, 0)),
    Part.ArcOfCircle(Part.Circle(App.Vector(-20.8, 28.7, 0), App.Vector(0, 0, 1), 1.2), math.radians(90), math.radians(270)),
    Part.LineSegment(App.Vector(-20.8, 27.5, 0), App.Vector(-7.7, 27.5, 0)),
    Part.ArcOfCircle(Part.Circle(App.Vector(-7.7, 28.7, 0), App.Vector(0, 0, 1), 1.2), math.radians(-90), math.radians(90)),
    Part.LineSegment(App.Vector(-7.7, 24.3, 0), App.Vector(-20.8, 24.3, 0)),
    Part.ArcOfCircle(Part.Circle(App.Vector(-20.8, 23, 0), App.Vector(0, 0, 1), 1.2), math.radians(90), math.radians(270)),
    Part.LineSegment(App.Vector(-20.8, 21.8, 0), App.Vector(-7.7, 21.8, 0)),
    Part.ArcOfCircle(Part.Circle(App.Vector(-7.7, 23, 0), App.Vector(0, 0, 1), 1.2), math.radians(-90), math.radians(90)),
    Part.LineSegment(App.Vector(-7.7, 18.6, 0), App.Vector(-20.8, 18.6, 0)),
    Part.ArcOfCircle(Part.Circle(App.Vector(-20.8, 17.3, 0), App.Vector(0, 0, 1), 1.2), math.radians(90), math.radians(270)),
    Part.LineSegment(App.Vector(-20.8, 16.1, 0), App.Vector(-7.7, 16.1, 0)),
    Part.ArcOfCircle(Part.Circle(App.Vector(-7.7, 17.3, 0), App.Vector(0, 0, 1), 1.2), math.radians(-90), math.radians(90)),
    Part.LineSegment(App.Vector(-7.7, 12.9, 0), App.Vector(-20.8, 12.9, 0)),
    Part.ArcOfCircle(Part.Circle(App.Vector(-20.8, 11.6, 0), App.Vector(0, 0, 1), 1.2), math.radians(90), math.radians(270)),
    Part.LineSegment(App.Vector(-20.8, 10.4, 0), App.Vector(-7.7, 10.4, 0)),
    Part.ArcOfCircle(Part.Circle(App.Vector(-7.7, 11.6, 0), App.Vector(0, 0, 1), 1.2), math.radians(-90), math.radians(90)),
], False)
sketch10.addConstraint([
    Sketcher.Constraint("Tangent", 0, 2, 1, 1),
    Sketcher.Constraint("Tangent", 1, 2, 2, 1),
    Sketcher.Constraint("Tangent", 2, 2, 3, 1),
    Sketcher.Constraint("Tangent", 3, 2, 0, 1),
    Sketcher.Constraint("Tangent", 4, 2, 5, 1),
    Sketcher.Constraint("Tangent", 5, 2, 6, 1),
    Sketcher.Constraint("Tangent", 6, 2, 7, 1),
    Sketcher.Constraint("Tangent", 7, 2, 4, 1),
    Sketcher.Constraint("Tangent", 8, 2, 9, 1),
    Sketcher.Constraint("Tangent", 9, 2, 10, 1),
    Sketcher.Constraint("Tangent", 10, 2, 11, 1),
    Sketcher.Constraint("Tangent", 11, 2, 8, 1),
    Sketcher.Constraint("Tangent", 12, 2, 13, 1),
    Sketcher.Constraint("Tangent", 13, 2, 14, 1),
    Sketcher.Constraint("Tangent", 14, 2, 15, 1),
    Sketcher.Constraint("Tangent", 15, 2, 12, 1),
    Sketcher.Constraint("Tangent", 16, 2, 17, 1),
    Sketcher.Constraint("Tangent", 17, 2, 18, 1),
    Sketcher.Constraint("Tangent", 18, 2, 19, 1),
    Sketcher.Constraint("Tangent", 19, 2, 16, 1),
    Sketcher.Constraint("Horizontal", 0),
    Sketcher.Constraint("Horizontal", 2),
    Sketcher.Constraint("Horizontal", 4),
    Sketcher.Constraint("Horizontal", 6),
    Sketcher.Constraint("Horizontal", 8),
    Sketcher.Constraint("Horizontal", 10),
    Sketcher.Constraint("Horizontal", 12),
    Sketcher.Constraint("Horizontal", 14),
    Sketcher.Constraint("Horizontal", 16),
    Sketcher.Constraint("Horizontal", 18),
    Sketcher.Constraint("Equal", 3, 5),
    Sketcher.Constraint("Equal", 7, 9),
    Sketcher.Constraint("Equal", 11, 13),
    Sketcher.Constraint("Equal", 15, 17),
    Sketcher.Constraint("Vertical", 1, 3, 5, 3),
    Sketcher.Constraint("Vertical", 3, 3, 7, 3),
    Sketcher.Constraint("Vertical", 5, 3, 9, 3),
    Sketcher.Constraint("Vertical", 7, 3, 11, 3),
    Sketcher.Constraint("Vertical", 9, 3, 13, 3),
    Sketcher.Constraint("Vertical", 11, 3, 15, 3),
    Sketcher.Constraint("Vertical", 13, 3, 17, 3),
    Sketcher.Constraint("Vertical", 15, 3, 19, 3),
    Sketcher.Constraint("Radius", 1, 1.25),
    Sketcher.Constraint("DistanceY", 5, 3, 1, 3, 5.7),
    Sketcher.Constraint("DistanceY", 9, 3, 5, 3, 5.7),
    Sketcher.Constraint("DistanceY", 13, 3, 9, 3, 5.7),
    Sketcher.Constraint("DistanceY", 17, 3, 13, 3, 5.7),
    Sketcher.Constraint("DistanceX", 0, 2, 0, 1, 13.160067),
    Sketcher.Constraint("DistanceX", 1, 3, -1, 1, 20.830034),
    Sketcher.Constraint("DistanceY", -1, 1, 1, 3, 34.412637),
])
pocket7 = body.newObject("PartDesign::Pocket", "Pocket006")
pocket7.Profile = sketch10
pocket7.Length = 4

sketch11 = body.newObject("Sketcher::SketchObject", "Sketch010")
sketch11.AttachmentSupport = (doc.getObject("XY_Plane"), [""])
sketch11.MapMode = "FlatFace"
sketch11.AttachmentOffset = App.Placement(App.Vector(0, 0, -47.807084), App.Rotation())
sketch11.addGeometry([
    Part.LineSegment(App.Vector(-17, 5.1, 0), App.Vector(-17, 23.1, 0)),
    Part.ArcOfCircle(Part.Circle(App.Vector(-15.5, 23.1, 0), App.Vector(0, 0, 1), 1.5), math.radians(0), math.radians(180)),
    Part.LineSegment(App.Vector(-14, 23.1, 0), App.Vector(-14, 5.1, 0)),
    Part.ArcOfCircle(Part.Circle(App.Vector(-15.5, 5.1, 0), App.Vector(0, 0, 1), 1.5), math.radians(180), math.radians(360)),
], False)
sketch11.addConstraint([
    Sketcher.Constraint("Tangent", 0, 2, 1, 2),
    Sketcher.Constraint("Tangent", 1, 1, 2, 1),
    Sketcher.Constraint("Tangent", 2, 2, 3, 2),
    Sketcher.Constraint("Tangent", 3, 1, 0, 1),
    Sketcher.Constraint("Vertical", 0),
    Sketcher.Constraint("Vertical", 2),
    Sketcher.Constraint("Radius", 1, 1.5),
    Sketcher.Constraint("DistanceY", 0, 1, 0, 2, 18.0),
    Sketcher.Constraint("DistanceX", 0, 2, -1, 1, 17.0),
    Sketcher.Constraint("DistanceY", -1, 1, 1, 3, 23.129012),
])
pocket8 = body.newObject("PartDesign::Pocket", "Pocket007")
pocket8.Profile = sketch11
pocket8.Length = 8
pocket8.Reversed = True

sketch12 = body.newObject("Sketcher::SketchObject", "Sketch011")
sketch12.AttachmentSupport = (doc.getObject("XY_Plane"), [""])
sketch12.MapMode = "FlatFace"
sketch12.AttachmentOffset = App.Placement(App.Vector(0, 0, -47.807084), App.Rotation())
sketch12.addGeometry(Part.Circle(App.Vector(-15.5, -16.5, 0), App.Vector(0, 0, 1), 3.5), False)
sketch12.addConstraint([
    Sketcher.Constraint("Diameter", 0, 7.0),
    Sketcher.Constraint("DistanceX", 0, 3, -1, 1, 15.5),
    Sketcher.Constraint("DistanceY", 0, 3, -1, 1, 16.470988),
])
pocket9 = body.newObject("PartDesign::Pocket", "Pocket008")
pocket9.Profile = sketch12
pocket9.Length = 10
pocket9.Reversed = True

sketch13 = body.newObject("Sketcher::SketchObject", "Sketch012")
sketch13.AttachmentSupport = (doc.getObject("XY_Plane"), [""])
sketch13.MapMode = "FlatFace"
sketch13.AttachmentOffset = App.Placement(App.Vector(0, 0, -41.307084), App.Rotation())
sketch13.addGeometry([
    Part.LineSegment(App.Vector(-16, -23, 0), App.Vector(-10, -20, 0)),
    Part.LineSegment(App.Vector(-10, -20, 0), App.Vector(-10, -13, 0)),
    Part.LineSegment(App.Vector(-10, -13, 0), App.Vector(-16, -10, 0)),
    Part.LineSegment(App.Vector(-16, -10, 0), App.Vector(-21, -13, 0)),
    Part.LineSegment(App.Vector(-21, -13, 0), App.Vector(-21, -20, 0)),
    Part.LineSegment(App.Vector(-21, -20, 0), App.Vector(-16, -23, 0)),
], False)
sketch13.addConstraint([
    Sketcher.Constraint("Coincident", 0, 2, 1, 1),
    Sketcher.Constraint("Coincident", 1, 2, 2, 1),
    Sketcher.Constraint("Coincident", 2, 2, 3, 1),
    Sketcher.Constraint("Coincident", 3, 2, 4, 1),
    Sketcher.Constraint("Coincident", 4, 2, 5, 1),
    Sketcher.Constraint("Coincident", 5, 2, 0, 1),
    Sketcher.Constraint("Vertical", 1),
    Sketcher.Constraint("Vertical", 4),
    Sketcher.Constraint("Parallel", 0, 3),
    Sketcher.Constraint("Parallel", 2, 5),
    Sketcher.Constraint("Horizontal", 1, 2, 3, 2),
    Sketcher.Constraint("Horizontal", 0, 2, 4, 2),
    Sketcher.Constraint("Vertical", 2, 2, 5, 2),
    Sketcher.Constraint("Angle", 0, Q("30 deg")),
    Sketcher.Constraint("DistanceY", 1, 1, 1, 2, 6.64),
    Sketcher.Constraint("DistanceX", 2, 2, -1, 1, 15.5),
    Sketcher.Constraint("Distance", 0, 6.64),
    Sketcher.Constraint("DistanceY", 0, 2, -1, 1, 19.790988),
])
pocket10 = body.newObject("PartDesign::Pocket", "Pocket009")
pocket10.Profile = sketch13
pocket10.Length = 4.8

doc.recompute()
